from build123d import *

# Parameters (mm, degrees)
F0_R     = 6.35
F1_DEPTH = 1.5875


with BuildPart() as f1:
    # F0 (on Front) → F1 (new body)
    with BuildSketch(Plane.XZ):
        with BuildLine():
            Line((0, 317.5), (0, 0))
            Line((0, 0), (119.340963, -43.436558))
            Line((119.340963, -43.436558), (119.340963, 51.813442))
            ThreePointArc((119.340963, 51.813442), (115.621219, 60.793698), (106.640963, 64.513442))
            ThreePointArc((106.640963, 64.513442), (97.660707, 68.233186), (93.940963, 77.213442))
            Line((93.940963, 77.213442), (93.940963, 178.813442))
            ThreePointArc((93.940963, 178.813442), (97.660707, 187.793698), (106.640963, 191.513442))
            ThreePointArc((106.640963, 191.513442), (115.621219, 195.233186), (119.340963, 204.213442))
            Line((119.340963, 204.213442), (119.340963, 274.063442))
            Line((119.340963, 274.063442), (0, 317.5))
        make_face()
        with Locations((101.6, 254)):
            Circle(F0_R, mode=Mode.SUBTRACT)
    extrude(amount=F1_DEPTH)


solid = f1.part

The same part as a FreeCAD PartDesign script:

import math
import FreeCAD as App
import Part
import Sketcher
Q = App.Units.Quantity

doc = App.newDocument("Part")
body = doc.addObject("PartDesign::Body", "Body")

sketch1 = body.newObject("Sketcher::SketchObject", "Sketch")
sketch1.AttachmentSupport = (doc.getObject("XZ_Plane"), [""])
sketch1.MapMode = "FlatFace"
sketch1.addGeometry(Part.LineSegment(App.Vector(0, 318, 0), App.Vector(0, 0, 0)), False)
sketch1.addGeometry(Part.LineSegment(App.Vector(0, 0, 0), App.Vector(119, -43, 0)), False)
sketch1.addGeometry(Part.LineSegment(App.Vector(119, -43, 0), App.Vector(119, 52, 0)), False)
sketch1.addGeometry(Part.ArcOfCircle(Part.Circle(App.Vector(107, 52, 0), App.Vector(0, 0, 1), 13), math.radians(0), math.radians(90)), False)
sketch1.addGeometry(Part.ArcOfCircle(Part.Circle(App.Vector(107, 77, 0), App.Vector(0, 0, 1), 13), math.radians(-180), math.radians(-90)), False)
sketch1.addGeometry(Part.LineSegment(App.Vector(94, 77, 0), App.Vector(94, 179, 0)), False)
sketch1.addGeometry(Part.ArcOfCircle(Part.Circle(App.Vector(107, 179, 0), App.Vector(0, 0, 1), 13), math.radians(90), math.radians(180)), False)
sketch1.addGeometry(Part.ArcOfCircle(Part.Circle(App.Vector(107, 204, 0), App.Vector(0, 0, 1), 13), math.radians(-90), math.radians(0)), False)
sketch1.addGeometry(Part.LineSegment(App.Vector(119, 204, 0), App.Vector(119, 274, 0)), False)
sketch1.addGeometry(Part.LineSegment(App.Vector(119, 274, 0), App.Vector(0, 318, 0)), False)
sketch1.addGeometry(Part.Circle(App.Vector(102, 254, 0), App.Vector(0, 0, 1), 6), False)
sketch1.addConstraint(Sketcher.Constraint("Coincident", 0, 2, 1, 1))
sketch1.addConstraint(Sketcher.Constraint("Coincident", 1, 2, 2, 1))
sketch1.addConstraint(Sketcher.Constraint("Tangent", 2, 2, 3, 1))
sketch1.addConstraint(Sketcher.Constraint("Tangent", 3, 2, 4, 2))
sketch1.addConstraint(Sketcher.Constraint("Tangent", 4, 1, 5, 1))
sketch1.addConstraint(Sketcher.Constraint("Tangent", 5, 2, 6, 2))
sketch1.addConstraint(Sketcher.Constraint("Tangent", 6, 1, 7, 1))
sketch1.addConstraint(Sketcher.Constraint("Tangent", 7, 2, 8, 1))
sketch1.addConstraint(Sketcher.Constraint("Coincident", 8, 2, 9, 1))
sketch1.addConstraint(Sketcher.Constraint("Coincident", 9, 2, 0, 1))
sketch1.addConstraint(Sketcher.Constraint("Vertical", 0))
sketch1.addConstraint(Sketcher.Constraint("Vertical", 2))
sketch1.addConstraint(Sketcher.Constraint("Vertical", 5))
sketch1.addConstraint(Sketcher.Constraint("Vertical", 8))
sketch1.addConstraint(Sketcher.Constraint("Coincident", 0, 2, -1, 1))
sketch1.addConstraint(Sketcher.Constraint("Equal", 3, 4))
sketch1.addConstraint(Sketcher.Constraint("Equal", 4, 6))
sketch1.addConstraint(Sketcher.Constraint("Equal", 6, 7))
sketch1.addConstraint(Sketcher.Constraint("Parallel", 1, 9))
sketch1.addConstraint(Sketcher.Constraint("Vertical", 3, 3, 4, 3))
sketch1.addConstraint(Sketcher.Constraint("Vertical", 6, 3, 7, 3))
sketch1.addConstraint(Sketcher.Constraint("Diameter", 10, Q("0.5 in")))
sketch1.addConstraint(Sketcher.Constraint("Radius", 3, Q("0.5 in")))
sketch1.addConstraint(Sketcher.Constraint("DistanceY", 5, 1, 5, 2, Q("4 in")))
sketch1.addConstraint(Sketcher.Constraint("Distance", 1, Q("5 in")))
sketch1.addConstraint(Sketcher.Constraint("DistanceY", 0, 2, 0, 1, Q("12.5 in")))
sketch1.addConstraint(Sketcher.Constraint("DistanceX", -1, 1, 10, 3, Q("4 in")))
sketch1.addConstraint(Sketcher.Constraint("DistanceY", -1, 1, 10, 3, Q("10 in")))
sketch1.addConstraint(Sketcher.Constraint("Angle", 1, Q("-20 deg")))
sketch1.addConstraint(Sketcher.Constraint("DistanceY", 2, 1, 2, 2, Q("3.75 in")))
pad1 = body.newObject("PartDesign::Pad", "Pad")
pad1.Profile = sketch1
pad1.Length = Q("0.0625 in")

doc.recompute()
